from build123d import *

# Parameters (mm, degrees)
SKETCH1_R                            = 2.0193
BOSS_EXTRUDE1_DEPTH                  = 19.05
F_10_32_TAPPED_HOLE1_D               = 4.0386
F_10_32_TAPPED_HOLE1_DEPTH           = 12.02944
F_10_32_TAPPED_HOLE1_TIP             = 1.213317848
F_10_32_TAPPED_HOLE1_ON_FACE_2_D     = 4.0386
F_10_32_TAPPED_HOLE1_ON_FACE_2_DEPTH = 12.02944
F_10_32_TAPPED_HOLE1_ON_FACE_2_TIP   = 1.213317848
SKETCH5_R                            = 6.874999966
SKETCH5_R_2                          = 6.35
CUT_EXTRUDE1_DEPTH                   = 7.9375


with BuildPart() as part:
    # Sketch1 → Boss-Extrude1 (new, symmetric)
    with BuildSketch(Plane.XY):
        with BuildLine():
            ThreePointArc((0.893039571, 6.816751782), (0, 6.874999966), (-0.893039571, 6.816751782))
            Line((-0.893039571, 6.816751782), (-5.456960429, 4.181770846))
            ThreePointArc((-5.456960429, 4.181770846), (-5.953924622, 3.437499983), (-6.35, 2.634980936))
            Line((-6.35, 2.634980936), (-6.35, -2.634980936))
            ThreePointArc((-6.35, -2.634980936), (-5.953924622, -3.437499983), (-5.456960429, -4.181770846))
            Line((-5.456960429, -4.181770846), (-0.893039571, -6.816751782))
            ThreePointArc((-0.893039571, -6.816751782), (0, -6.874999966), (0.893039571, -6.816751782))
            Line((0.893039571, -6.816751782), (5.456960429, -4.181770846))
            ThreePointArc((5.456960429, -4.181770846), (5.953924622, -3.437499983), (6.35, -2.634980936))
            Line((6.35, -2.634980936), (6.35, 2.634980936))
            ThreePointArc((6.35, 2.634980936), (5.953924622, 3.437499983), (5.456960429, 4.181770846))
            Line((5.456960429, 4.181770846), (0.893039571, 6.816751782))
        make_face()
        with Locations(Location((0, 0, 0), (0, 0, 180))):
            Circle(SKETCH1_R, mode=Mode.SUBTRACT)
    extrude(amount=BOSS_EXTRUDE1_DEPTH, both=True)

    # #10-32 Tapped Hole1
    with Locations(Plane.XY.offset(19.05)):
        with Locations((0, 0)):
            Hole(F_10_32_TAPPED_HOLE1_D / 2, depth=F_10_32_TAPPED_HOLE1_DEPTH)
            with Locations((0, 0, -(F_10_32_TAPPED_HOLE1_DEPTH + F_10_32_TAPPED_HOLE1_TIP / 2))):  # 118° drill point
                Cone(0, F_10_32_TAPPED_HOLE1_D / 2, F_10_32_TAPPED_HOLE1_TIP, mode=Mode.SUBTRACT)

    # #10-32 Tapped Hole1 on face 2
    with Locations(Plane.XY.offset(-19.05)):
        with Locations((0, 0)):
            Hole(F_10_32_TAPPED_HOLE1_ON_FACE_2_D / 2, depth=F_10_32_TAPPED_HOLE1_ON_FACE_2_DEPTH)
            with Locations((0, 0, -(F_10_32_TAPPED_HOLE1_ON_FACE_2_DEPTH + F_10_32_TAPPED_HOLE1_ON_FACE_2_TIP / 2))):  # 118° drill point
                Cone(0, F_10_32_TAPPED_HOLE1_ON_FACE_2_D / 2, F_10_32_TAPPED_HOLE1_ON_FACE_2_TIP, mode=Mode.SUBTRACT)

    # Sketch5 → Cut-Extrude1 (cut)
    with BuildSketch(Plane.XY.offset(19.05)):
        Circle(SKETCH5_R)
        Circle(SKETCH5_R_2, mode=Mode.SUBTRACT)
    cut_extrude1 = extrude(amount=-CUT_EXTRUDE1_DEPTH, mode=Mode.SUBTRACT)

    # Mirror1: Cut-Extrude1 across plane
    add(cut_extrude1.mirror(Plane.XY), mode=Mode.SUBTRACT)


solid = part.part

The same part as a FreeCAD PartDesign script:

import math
import FreeCAD as App
import Part
import Sketcher

V = App.Vector
Q = App.Units.Quantity

doc = App.newDocument("Part")
body = doc.addObject("PartDesign::Body", "Body")

sketch1 = body.newObject("Sketcher::SketchObject", "Sketch")
sketch1.AttachmentSupport = (doc.getObject("XY_Plane"), [""])
sketch1.MapMode = "FlatFace"
sketch1.addGeometry([
    Part.ArcOfCircle(Part.Circle(V(0, 0, 0), V(0, 0, 1), 6.875), math.radians(82.536379), math.radians(97.463621)),
    Part.LineSegment(V(-0.89304, 6.816752, 0), V(-5.45696, 4.181771, 0)),
    Part.ArcOfCircle(Part.Circle(V(0, 0, 0), V(0, 0, 1), 6.875), math.radians(142.536379), math.radians(157.463621)),
    Part.LineSegment(V(-6.35, 2.634981, 0), V(-6.35, -2.634981, 0)),
    Part.ArcOfCircle(Part.Circle(V(0, 0, 0), V(0, 0, 1), 6.875), math.radians(-157.463621), math.radians(-142.536379)),
    Part.LineSegment(V(-5.45696, -4.181771, 0), V(-0.89304, -6.816752, 0)),
    Part.ArcOfCircle(Part.Circle(V(0, 0, 0), V(0, 0, 1), 6.875), math.radians(-97.463621), math.radians(-82.536379)),
    Part.LineSegment(V(0.89304, -6.816752, 0), V(5.45696, -4.181771, 0)),
    Part.ArcOfCircle(Part.Circle(V(0, 0, 0), V(0, 0, 1), 6.875), math.radians(-37.463621), math.radians(-22.536379)),
    Part.LineSegment(V(6.35, -2.634981, 0), V(6.35, 2.634981, 0)),
    Part.ArcOfCircle(Part.Circle(V(0, 0, 0), V(0, 0, 1), 6.875), math.radians(22.536379), math.radians(37.463621)),
    Part.LineSegment(V(5.45696, 4.181771, 0), V(0.89304, 6.816752, 0)),
    Part.Circle(V(0, 0, 0), V(0, 0, 1), 2.0193),
], False)
sketch1.addConstraint([
    Sketcher.Constraint("Coincident", 0, 2, 1, 1),
    Sketcher.Constraint("Coincident", 1, 2, 2, 1),
    Sketcher.Constraint("Coincident", 2, 2, 3, 1),
    Sketcher.Constraint("Coincident", 3, 2, 4, 1),
    Sketcher.Constraint("Coincident", 4, 2, 5, 1),
    Sketcher.Constraint("Coincident", 5, 2, 6, 1),
    Sketcher.Constraint("Coincident", 6, 2, 7, 1),
    Sketcher.Constraint("Coincident", 7, 2, 8, 1),
    Sketcher.Constraint("Coincident", 8, 2, 9, 1),
    Sketcher.Constraint("Coincident", 9, 2, 10, 1),
    Sketcher.Constraint("Coincident", 10, 2, 11, 1),
    Sketcher.Constraint("Coincident", 11, 2, 0, 1),
    Sketcher.Constraint("Vertical", 3),
    Sketcher.Constraint("Vertical", 9),
    Sketcher.Constraint("Coincident", 0, 3, -1, 1),
    Sketcher.Constraint("Coincident", 2, 3, -1, 1),
    Sketcher.Constraint("Coincident", 4, 3, -1, 1),
    Sketcher.Constraint("Coincident", 6, 3, -1, 1),
    Sketcher.Constraint("Coincident", 8, 3, -1, 1),
    Sketcher.Constraint("Coincident", 10, 3, -1, 1),
    Sketcher.Constraint("Coincident", 12, 3, -1, 1),
    Sketcher.Constraint("Equal", 0, 2),
    Sketcher.Constraint("Equal", 2, 4),
    Sketcher.Constraint("Equal", 4, 6),
    Sketcher.Constraint("Equal", 6, 8),
    Sketcher.Constraint("Equal", 8, 10),
    Sketcher.Constraint("Parallel", 1, 7),
    Sketcher.Constraint("Parallel", 5, 11),
    Sketcher.Constraint("Horizontal", 5, 2, 6, 2),
    Sketcher.Constraint("Horizontal", 4, 2, 7, 2),
    Sketcher.Constraint("Horizontal", 3, 2, 8, 2),
    Sketcher.Constraint("Horizontal", 1, 2, 10, 2),
    Sketcher.Constraint("Vertical", 1, 2, 4, 2),
    Sketcher.Constraint("Diameter", 12, Q("0.159 in")),
    Sketcher.Constraint("Angle", 1, Q("-150 deg")),
    Sketcher.Constraint("DistanceX", 2, 2, -1, 1, Q("0.25 in")),
    Sketcher.Constraint("Radius", 0, Q("6.875 mm")),
    Sketcher.Constraint("DistanceX", 0, 2, 10, 2, Q("0.25 in")),
])
pad1 = body.newObject("PartDesign::Pad", "Pad")
pad1.Profile = sketch1
pad1.Length = Q("1.5 in")
pad1.Midplane = True

sketch2 = body.newObject("Sketcher::SketchObject", "Sketch001")
sketch2.AttachmentSupport = (doc.getObject("XY_Plane"), [""])
sketch2.MapMode = "FlatFace"
sketch2.AttachmentOffset = App.Placement(V(0, 0, 0.75 * 25.4), App.Rotation())
sketch2.addGeometry(Part.Circle(V(0, 0, 0), V(0, 0, 1), 2.0193), False)
sketch2.addConstraint([
    Sketcher.Constraint("Coincident", 0, 3, -1, 1),
    Sketcher.Constraint("Diameter", 0, Q("0.159 in")),
])
doc.recompute()
hole = body.newObject("PartDesign::Hole", "Hole")
hole.Profile = sketch2
hole.ThreadType = "None"
hole.Diameter = Q("0.159 in")
hole.DepthType = "Dimension"
hole.Depth = Q("0.4736 in")
hole.DrillPoint = "Angled"
hole.DrillPointAngle = 118

sketch3 = body.newObject("Sketcher::SketchObject", "Sketch002")
sketch3.AttachmentSupport = (doc.getObject("XY_Plane"), [""])
sketch3.MapMode = "FlatFace"
sketch3.AttachmentOffset = App.Placement(V(0, 0, -0.75 * 25.4), App.Rotation())
sketch3.addGeometry(Part.Circle(V(0, 0, 0), V(0, 0, 1), 2.0193), False)
sketch3.addConstraint([
    Sketcher.Constraint("Coincident", 0, 3, -1, 1),
    Sketcher.Constraint("Diameter", 0, Q("0.159 in")),
])
doc.recompute()
hole2 = body.newObject("PartDesign::Hole", "Hole001")
hole2.Profile = sketch3
hole2.ThreadType = "None"
hole2.Diameter = Q("0.159 in")
hole2.DepthType = "Dimension"
hole2.Depth = Q("0.4736 in")
hole2.DrillPoint = "Angled"
hole2.DrillPointAngle = 118

sketch4 = body.newObject("Sketcher::SketchObject", "Sketch003")
sketch4.AttachmentSupport = (doc.getObject("XY_Plane"), [""])
sketch4.MapMode = "FlatFace"
sketch4.AttachmentOffset = App.Placement(V(0, 0, 0.75 * 25.4), App.Rotation())
sketch4.addGeometry([
    Part.Circle(V(0, 0, 0), V(0, 0, 1), 6.875),
    Part.Circle(V(0, 0, 0), V(0, 0, 1), 6.35),
], False)
sketch4.addConstraint([
    Sketcher.Constraint("Coincident", 0, 3, -1, 1),
    Sketcher.Constraint("Coincident", 1, 3, -1, 1),
    Sketcher.Constraint("Diameter", 1, Q("0.5 in")),
    Sketcher.Constraint("Diameter", 0, Q("13.75 mm")),
])
pocket1 = body.newObject("PartDesign::Pocket", "Pocket")
pocket1.Profile = sketch4
pocket1.Length = Q("0.3125 in")
doc.recompute()

mirrored = body.newObject("PartDesign::Mirrored", "Mirrored")
mirrored.Originals = [pocket1]
mirrored.MirrorPlane = (doc.getObject("XY_Plane"), [""])
body.Tip = mirrored

doc.recompute()
